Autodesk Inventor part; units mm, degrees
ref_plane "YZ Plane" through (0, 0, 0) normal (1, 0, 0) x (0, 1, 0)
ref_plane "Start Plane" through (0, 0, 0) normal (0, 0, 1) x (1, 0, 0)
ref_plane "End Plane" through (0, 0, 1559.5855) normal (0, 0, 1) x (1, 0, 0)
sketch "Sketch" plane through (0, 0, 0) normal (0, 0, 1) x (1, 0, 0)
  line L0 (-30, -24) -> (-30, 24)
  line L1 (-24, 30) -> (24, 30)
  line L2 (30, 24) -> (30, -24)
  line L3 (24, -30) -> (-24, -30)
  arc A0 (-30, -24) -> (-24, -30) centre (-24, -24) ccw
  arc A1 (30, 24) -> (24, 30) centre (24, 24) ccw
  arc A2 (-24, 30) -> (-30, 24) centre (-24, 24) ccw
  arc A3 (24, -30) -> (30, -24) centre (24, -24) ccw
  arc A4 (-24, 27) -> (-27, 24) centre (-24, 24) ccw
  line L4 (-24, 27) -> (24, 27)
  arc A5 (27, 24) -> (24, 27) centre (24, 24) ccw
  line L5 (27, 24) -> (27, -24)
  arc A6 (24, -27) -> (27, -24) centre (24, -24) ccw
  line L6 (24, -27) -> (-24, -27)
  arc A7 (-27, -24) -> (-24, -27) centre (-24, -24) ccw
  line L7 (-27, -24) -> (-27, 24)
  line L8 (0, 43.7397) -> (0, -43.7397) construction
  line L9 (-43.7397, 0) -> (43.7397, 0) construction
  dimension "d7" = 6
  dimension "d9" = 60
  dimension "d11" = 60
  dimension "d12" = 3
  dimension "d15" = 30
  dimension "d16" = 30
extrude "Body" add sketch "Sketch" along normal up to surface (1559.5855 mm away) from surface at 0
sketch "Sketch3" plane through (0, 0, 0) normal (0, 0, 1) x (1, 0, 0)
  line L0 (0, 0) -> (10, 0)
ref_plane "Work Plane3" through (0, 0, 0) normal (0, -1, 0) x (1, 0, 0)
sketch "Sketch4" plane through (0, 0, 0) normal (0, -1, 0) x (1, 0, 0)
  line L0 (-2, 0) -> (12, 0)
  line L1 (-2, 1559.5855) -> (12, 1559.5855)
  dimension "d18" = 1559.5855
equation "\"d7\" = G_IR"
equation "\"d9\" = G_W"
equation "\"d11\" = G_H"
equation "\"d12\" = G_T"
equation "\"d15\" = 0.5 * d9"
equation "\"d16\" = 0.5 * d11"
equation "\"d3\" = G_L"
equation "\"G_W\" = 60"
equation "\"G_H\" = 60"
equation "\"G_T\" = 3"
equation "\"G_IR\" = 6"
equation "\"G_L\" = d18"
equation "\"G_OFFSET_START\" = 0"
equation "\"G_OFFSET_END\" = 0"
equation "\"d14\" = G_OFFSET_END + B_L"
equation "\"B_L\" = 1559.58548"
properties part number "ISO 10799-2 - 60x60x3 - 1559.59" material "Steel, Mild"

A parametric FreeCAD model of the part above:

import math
import FreeCAD as App
import Part
import Sketcher

V = App.Vector
Q = App.Units.Quantity

doc = App.newDocument("Part")
body = doc.addObject("PartDesign::Body", "Body")

sketch1 = doc.addObject("Sketcher::SketchObject", "Sketch")
body.addObject(sketch1)
sketch1.AttachmentSupport = (doc.XY_Plane, [""])
sketch1.MapMode = "FlatFace"
sketch1.addGeometry(Part.LineSegment(V(-30, 24, 0), V(-30, -24, 0)), False)
sketch1.addGeometry(Part.ArcOfCircle(Part.Circle(V(-24, -24, 0), V(0, 0, 1), 6), math.radians(180), math.radians(270)), False)
sketch1.addGeometry(Part.LineSegment(V(-24, -30, 0), V(24, -30, 0)), False)
sketch1.addGeometry(Part.ArcOfCircle(Part.Circle(V(24, -24, 0), V(0, 0, 1), 6), math.radians(-90), math.radians(0)), False)
sketch1.addGeometry(Part.LineSegment(V(30, -24, 0), V(30, 24, 0)), False)
sketch1.addGeometry(Part.ArcOfCircle(Part.Circle(V(24, 24, 0), V(0, 0, 1), 6), math.radians(0), math.radians(90)), False)
sketch1.addGeometry(Part.LineSegment(V(24, 30, 0), V(-24, 30, 0)), False)
sketch1.addGeometry(Part.ArcOfCircle(Part.Circle(V(-24, 24, 0), V(0, 0, 1), 6), math.radians(90), math.radians(180)), False)
sketch1.addGeometry(Part.ArcOfCircle(Part.Circle(V(-24, 24, 0), V(0, 0, 1), 3), math.radians(90), math.radians(180)), False)
sketch1.addGeometry(Part.LineSegment(V(-24, 27, 0), V(24, 27, 0)), False)
sketch1.addGeometry(Part.ArcOfCircle(Part.Circle(V(24, 24, 0), V(0, 0, 1), 3), math.radians(0), math.radians(90)), False)
sketch1.addGeometry(Part.LineSegment(V(27, 24, 0), V(27, -24, 0)), False)
sketch1.addGeometry(Part.ArcOfCircle(Part.Circle(V(24, -24, 0), V(0, 0, 1), 3), math.radians(-90), math.radians(0)), False)
sketch1.addGeometry(Part.LineSegment(V(24, -27, 0), V(-24, -27, 0)), False)
sketch1.addGeometry(Part.ArcOfCircle(Part.Circle(V(-24, -24, 0), V(0, 0, 1), 3), math.radians(180), math.radians(270)), False)
sketch1.addGeometry(Part.LineSegment(V(-27, -24, 0), V(-27, 24, 0)), False)
sketch1.addConstraint(Sketcher.Constraint("Tangent", 0, 2, 1, 1))
sketch1.addConstraint(Sketcher.Constraint("Tangent", 1, 2, 2, 1))
sketch1.addConstraint(Sketcher.Constraint("Tangent", 2, 2, 3, 1))
sketch1.addConstraint(Sketcher.Constraint("Tangent", 3, 2, 4, 1))
sketch1.addConstraint(Sketcher.Constraint("Tangent", 4, 2, 5, 1))
sketch1.addConstraint(Sketcher.Constraint("Tangent", 5, 2, 6, 1))
sketch1.addConstraint(Sketcher.Constraint("Tangent", 6, 2, 7, 1))
sketch1.addConstraint(Sketcher.Constraint("Tangent", 7, 2, 0, 1))
sketch1.addConstraint(Sketcher.Constraint("Tangent", 8, 1, 9, 1))
sketch1.addConstraint(Sketcher.Constraint("Tangent", 9, 2, 10, 2))
sketch1.addConstraint(Sketcher.Constraint("Tangent", 10, 1, 11, 1))
sketch1.addConstraint(Sketcher.Constraint("Tangent", 11, 2, 12, 2))
sketch1.addConstraint(Sketcher.Constraint("Tangent", 12, 1, 13, 1))
sketch1.addConstraint(Sketcher.Constraint("Tangent", 13, 2, 14, 2))
sketch1.addConstraint(Sketcher.Constraint("Tangent", 14, 1, 15, 1))
sketch1.addConstraint(Sketcher.Constraint("Tangent", 15, 2, 8, 2))
sketch1.addConstraint(Sketcher.Constraint("Vertical", 0))
sketch1.addConstraint(Sketcher.Constraint("Horizontal", 2))
sketch1.addConstraint(Sketcher.Constraint("Vertical", 4))
sketch1.addConstraint(Sketcher.Constraint("Horizontal", 6))
sketch1.addConstraint(Sketcher.Constraint("Horizontal", 9))
sketch1.addConstraint(Sketcher.Constraint("Vertical", 11))
sketch1.addConstraint(Sketcher.Constraint("Horizontal", 13))
sketch1.addConstraint(Sketcher.Constraint("Vertical", 15))
sketch1.addConstraint(Sketcher.Constraint("Coincident", 8, 3, 7, 3))
sketch1.addConstraint(Sketcher.Constraint("Coincident", 10, 3, 5, 3))
sketch1.addConstraint(Sketcher.Constraint("Coincident", 12, 3, 3, 3))
sketch1.addConstraint(Sketcher.Constraint("Equal", 1, 3))
sketch1.addConstraint(Sketcher.Constraint("Equal", 3, 5))
sketch1.addConstraint(Sketcher.Constraint("Equal", 5, 7))
sketch1.addConstraint(Sketcher.Constraint("Equal", 12, 14))
sketch1.addConstraint(Sketcher.Constraint("Symmetric", 1, 3, 5, 3, -1, 1))
sketch1.addConstraint(Sketcher.Constraint("Equal", 13, 0))
sketch1.addConstraint(Sketcher.Constraint("Radius", 1, Q("6 mm")))
sketch1.addConstraint(Sketcher.Constraint("Radius", 8, Q("3 mm")))
sketch1.addConstraint(Sketcher.Constraint("DistanceX", 0, 2, -1, 1, Q("30 mm")))
pad1 = doc.addObject("PartDesign::Pad", "Pad")
body.addObject(pad1)
pad1.Profile = sketch1
pad1.Length = 1559.5855

doc.recompute()
